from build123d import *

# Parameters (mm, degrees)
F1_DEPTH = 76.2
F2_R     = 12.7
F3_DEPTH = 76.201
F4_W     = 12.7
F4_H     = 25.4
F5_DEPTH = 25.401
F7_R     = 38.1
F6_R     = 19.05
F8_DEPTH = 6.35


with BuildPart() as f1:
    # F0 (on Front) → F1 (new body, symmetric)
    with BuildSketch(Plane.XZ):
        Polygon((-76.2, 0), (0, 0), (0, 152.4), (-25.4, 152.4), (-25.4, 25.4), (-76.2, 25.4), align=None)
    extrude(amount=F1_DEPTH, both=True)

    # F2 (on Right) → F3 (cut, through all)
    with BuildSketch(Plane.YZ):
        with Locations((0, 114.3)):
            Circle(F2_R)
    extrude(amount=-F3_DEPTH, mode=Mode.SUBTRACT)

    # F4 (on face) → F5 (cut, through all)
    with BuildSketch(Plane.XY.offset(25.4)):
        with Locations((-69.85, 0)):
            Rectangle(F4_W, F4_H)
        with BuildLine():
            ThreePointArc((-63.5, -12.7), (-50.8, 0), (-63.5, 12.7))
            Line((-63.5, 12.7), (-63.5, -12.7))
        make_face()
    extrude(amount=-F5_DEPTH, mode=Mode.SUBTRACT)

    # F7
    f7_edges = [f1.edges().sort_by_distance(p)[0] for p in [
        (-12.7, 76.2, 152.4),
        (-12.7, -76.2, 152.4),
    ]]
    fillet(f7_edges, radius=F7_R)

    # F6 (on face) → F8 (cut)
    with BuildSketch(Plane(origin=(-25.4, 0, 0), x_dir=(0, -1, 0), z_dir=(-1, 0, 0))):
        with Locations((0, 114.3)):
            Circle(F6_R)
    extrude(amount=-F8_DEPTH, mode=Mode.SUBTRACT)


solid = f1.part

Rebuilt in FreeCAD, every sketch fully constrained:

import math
import FreeCAD as App
import Part
import Sketcher

V = App.Vector
Q = App.Units.Quantity


def edges_at(feature, points):
    """Names of the edges that pass closest to the given points."""
    edges = feature.Shape.Edges
    near = lambda p: min(range(len(edges)), key=lambda i: edges[i].distToShape(Part.Vertex(*p))[0])
    return sorted({f"Edge{near(p) + 1}" for p in points})

doc = App.newDocument("Part")
params = doc.addObject("Spreadsheet::Sheet", "Params")
for row, (alias, value) in enumerate([
    ("sketch1_width", "3 in"),
    ("sketch1_width2", "1 in"),
    ("sketch1_height", "6 in"),
    ("pad1_length", "6 in"),
    ("sketch2_diameter", "1 in"),
    ("sketch3_radius", "0.5 in"),
    ("sketch3_width", "0.5 in"),
    ("fillet_radius", "1.5 in"),
    ("sketch4_diameter", "1.5 in"),
    ("pocket3_length", "0.25 in"),
], start=1):
    params.set(f"A{row}", alias)
    params.set(f"B{row}", "=" + value)
    params.setAlias(f"B{row}", alias)

body = doc.addObject("PartDesign::Body", "Body")

# Sketch on XZ plane
sketch1 = body.newObject("Sketcher::SketchObject", "Sketch")
sketch1.AttachmentSupport = (doc.getObject("XZ_Plane"), [""])
sketch1.MapMode = "FlatFace"
sketch1.addGeometry(Part.LineSegment(V(-76.2, 0, 0), V(0, 0, 0)), False)
sketch1.addGeometry(Part.LineSegment(V(0, 0, 0), V(0, 152.4, 0)), False)
sketch1.addGeometry(Part.LineSegment(V(0, 152.4, 0), V(-25.4, 152.4, 0)), False)
sketch1.addGeometry(Part.LineSegment(V(-25.4, 152.4, 0), V(-25.4, 25.4, 0)), False)
sketch1.addGeometry(Part.LineSegment(V(-25.4, 25.4, 0), V(-76.2, 25.4, 0)), False)
sketch1.addGeometry(Part.LineSegment(V(-76.2, 25.4, 0), V(-76.2, 0, 0)), False)
sketch1.addConstraint(Sketcher.Constraint("Coincident", 0, 2, 1, 1))
sketch1.addConstraint(Sketcher.Constraint("Coincident", 1, 2, 2, 1))
sketch1.addConstraint(Sketcher.Constraint("Coincident", 2, 2, 3, 1))
sketch1.addConstraint(Sketcher.Constraint("Coincident", 3, 2, 4, 1))
sketch1.addConstraint(Sketcher.Constraint("Coincident", 4, 2, 5, 1))
sketch1.addConstraint(Sketcher.Constraint("Coincident", 5, 2, 0, 1))
sketch1.addConstraint(Sketcher.Constraint("Horizontal", 0))
sketch1.addConstraint(Sketcher.Constraint("Vertical", 1))
sketch1.addConstraint(Sketcher.Constraint("Horizontal", 2))
sketch1.addConstraint(Sketcher.Constraint("Vertical", 3))
sketch1.addConstraint(Sketcher.Constraint("Horizontal", 4))
sketch1.addConstraint(Sketcher.Constraint("Vertical", 5))
sketch1.addConstraint(Sketcher.Constraint("Coincident", 0, 2, -1, 1))
sketch1.addConstraint(Sketcher.Constraint("Equal", 2, 5))
sketch1.addConstraint(Sketcher.Constraint("DistanceX", 0, 1, 0, 2, Q("3 in")))
sketch1.addConstraint(Sketcher.Constraint("DistanceX", 2, 2, 2, 1, Q("1 in")))
sketch1.addConstraint(Sketcher.Constraint("DistanceY", 1, 1, 1, 2, Q("6 in")))
sketch1.setExpression("Constraints[14]", "Params.sketch1_width")
sketch1.setExpression("Constraints[15]", "Params.sketch1_width2")
sketch1.setExpression("Constraints[16]", "Params.sketch1_height")
pad1 = body.newObject("PartDesign::Pad", "Pad")
pad1.Profile = sketch1
pad1.setExpression("Length", "Params.pad1_length")
pad1.Midplane = True

# Sketch on YZ plane
sketch2 = body.newObject("Sketcher::SketchObject", "Sketch001")
sketch2.AttachmentSupport = (doc.getObject("YZ_Plane"), [""])
sketch2.MapMode = "FlatFace"
sketch2.addGeometry(Part.Circle(V(0, 114.3, 0), V(0, 0, 1), 12.7), False)
sketch2.addConstraint(Sketcher.Constraint("PointOnObject", 0, 3, -2))
sketch2.addConstraint(Sketcher.Constraint("Diameter", 0, Q("1 in")))
sketch2.addConstraint(Sketcher.Constraint("DistanceY", -1, 1, 0, 3, Q("4.5 in")))
sketch2.setExpression("Constraints[1]", "Params.sketch2_diameter")
pocket1 = body.newObject("PartDesign::Pocket", "Pocket")
pocket1.Profile = sketch2
pocket1.Type = "ThroughAll"

# Sketch on XY plane
sketch3 = body.newObject("Sketcher::SketchObject", "Sketch002")
sketch3.AttachmentSupport = (doc.getObject("XY_Plane"), [""])
sketch3.MapMode = "FlatFace"
sketch3.AttachmentOffset = App.Placement(V(0, 0, 1 * 25.4), App.Rotation())
sketch3.addGeometry(Part.LineSegment(V(-76.2, 12.7, 0), V(-76.2, -12.7, 0)), False)
sketch3.addGeometry(Part.LineSegment(V(-76.2, -12.7, 0), V(-63.5, -12.7, 0)), False)
sketch3.addGeometry(Part.ArcOfCircle(Part.Circle(V(-63.5, 0, 0), V(0, 0, 1), 12.7), math.radians(-90), math.radians(90)), False)
sketch3.addGeometry(Part.LineSegment(V(-63.5, 12.7, 0), V(-76.2, 12.7, 0)), False)
sketch3.addConstraint(Sketcher.Constraint("Coincident", 0, 2, 1, 1))
sketch3.addConstraint(Sketcher.Constraint("Tangent", 1, 2, 2, 1))
sketch3.addConstraint(Sketcher.Constraint("Tangent", 2, 2, 3, 1))
sketch3.addConstraint(Sketcher.Constraint("Coincident", 3, 2, 0, 1))
sketch3.addConstraint(Sketcher.Constraint("Vertical", 0))
sketch3.addConstraint(Sketcher.Constraint("Horizontal", 1))
sketch3.addConstraint(Sketcher.Constraint("Horizontal", 3))
sketch3.addConstraint(Sketcher.Constraint("PointOnObject", 2, 3, -1))
sketch3.addConstraint(Sketcher.Constraint("Radius", 2, Q("0.5 in")))
sketch3.addConstraint(Sketcher.Constraint("DistanceX", 1, 1, 1, 2, Q("0.5 in")))
sketch3.addConstraint(Sketcher.Constraint("DistanceX", 0, 2, -1, 1, Q("3 in")))
sketch3.setExpression("Constraints[8]", "Params.sketch3_radius")
sketch3.setExpression("Constraints[9]", "Params.sketch3_width")
pocket2 = body.newObject("PartDesign::Pocket", "Pocket001")
pocket2.Profile = sketch3
pocket2.Type = "ThroughAll"
doc.recompute()

fillet = body.newObject("PartDesign::Fillet", "Fillet")
fillet.Base = (pocket2, edges_at(pocket2, [(-12.7, 76.2, 152.4), (-12.7, -76.2, 152.4)]))
fillet.setExpression("Radius", "Params.fillet_radius")

# Sketch on YZ plane
sketch4 = body.newObject("Sketcher::SketchObject", "Sketch003")
sketch4.AttachmentSupport = (doc.getObject("YZ_Plane"), [""])
sketch4.MapMode = "FlatFace"
sketch4.AttachmentOffset = App.Placement(V(0, 0, -1 * 25.4), App.Rotation())
sketch4.addGeometry(Part.Circle(V(0, 114.3, 0), V(0, 0, 1), 19.05), False)
sketch4.addConstraint(Sketcher.Constraint("PointOnObject", 0, 3, -2))
sketch4.addConstraint(Sketcher.Constraint("Diameter", 0, Q("1.5 in")))
sketch4.addConstraint(Sketcher.Constraint("DistanceY", -1, 1, 0, 3, Q("4.5 in")))
sketch4.setExpression("Constraints[1]", "Params.sketch4_diameter")
pocket3 = body.newObject("PartDesign::Pocket", "Pocket002")
pocket3.Profile = sketch4
pocket3.setExpression("Length", "Params.pocket3_length")
pocket3.Reversed = True

doc.recompute()
